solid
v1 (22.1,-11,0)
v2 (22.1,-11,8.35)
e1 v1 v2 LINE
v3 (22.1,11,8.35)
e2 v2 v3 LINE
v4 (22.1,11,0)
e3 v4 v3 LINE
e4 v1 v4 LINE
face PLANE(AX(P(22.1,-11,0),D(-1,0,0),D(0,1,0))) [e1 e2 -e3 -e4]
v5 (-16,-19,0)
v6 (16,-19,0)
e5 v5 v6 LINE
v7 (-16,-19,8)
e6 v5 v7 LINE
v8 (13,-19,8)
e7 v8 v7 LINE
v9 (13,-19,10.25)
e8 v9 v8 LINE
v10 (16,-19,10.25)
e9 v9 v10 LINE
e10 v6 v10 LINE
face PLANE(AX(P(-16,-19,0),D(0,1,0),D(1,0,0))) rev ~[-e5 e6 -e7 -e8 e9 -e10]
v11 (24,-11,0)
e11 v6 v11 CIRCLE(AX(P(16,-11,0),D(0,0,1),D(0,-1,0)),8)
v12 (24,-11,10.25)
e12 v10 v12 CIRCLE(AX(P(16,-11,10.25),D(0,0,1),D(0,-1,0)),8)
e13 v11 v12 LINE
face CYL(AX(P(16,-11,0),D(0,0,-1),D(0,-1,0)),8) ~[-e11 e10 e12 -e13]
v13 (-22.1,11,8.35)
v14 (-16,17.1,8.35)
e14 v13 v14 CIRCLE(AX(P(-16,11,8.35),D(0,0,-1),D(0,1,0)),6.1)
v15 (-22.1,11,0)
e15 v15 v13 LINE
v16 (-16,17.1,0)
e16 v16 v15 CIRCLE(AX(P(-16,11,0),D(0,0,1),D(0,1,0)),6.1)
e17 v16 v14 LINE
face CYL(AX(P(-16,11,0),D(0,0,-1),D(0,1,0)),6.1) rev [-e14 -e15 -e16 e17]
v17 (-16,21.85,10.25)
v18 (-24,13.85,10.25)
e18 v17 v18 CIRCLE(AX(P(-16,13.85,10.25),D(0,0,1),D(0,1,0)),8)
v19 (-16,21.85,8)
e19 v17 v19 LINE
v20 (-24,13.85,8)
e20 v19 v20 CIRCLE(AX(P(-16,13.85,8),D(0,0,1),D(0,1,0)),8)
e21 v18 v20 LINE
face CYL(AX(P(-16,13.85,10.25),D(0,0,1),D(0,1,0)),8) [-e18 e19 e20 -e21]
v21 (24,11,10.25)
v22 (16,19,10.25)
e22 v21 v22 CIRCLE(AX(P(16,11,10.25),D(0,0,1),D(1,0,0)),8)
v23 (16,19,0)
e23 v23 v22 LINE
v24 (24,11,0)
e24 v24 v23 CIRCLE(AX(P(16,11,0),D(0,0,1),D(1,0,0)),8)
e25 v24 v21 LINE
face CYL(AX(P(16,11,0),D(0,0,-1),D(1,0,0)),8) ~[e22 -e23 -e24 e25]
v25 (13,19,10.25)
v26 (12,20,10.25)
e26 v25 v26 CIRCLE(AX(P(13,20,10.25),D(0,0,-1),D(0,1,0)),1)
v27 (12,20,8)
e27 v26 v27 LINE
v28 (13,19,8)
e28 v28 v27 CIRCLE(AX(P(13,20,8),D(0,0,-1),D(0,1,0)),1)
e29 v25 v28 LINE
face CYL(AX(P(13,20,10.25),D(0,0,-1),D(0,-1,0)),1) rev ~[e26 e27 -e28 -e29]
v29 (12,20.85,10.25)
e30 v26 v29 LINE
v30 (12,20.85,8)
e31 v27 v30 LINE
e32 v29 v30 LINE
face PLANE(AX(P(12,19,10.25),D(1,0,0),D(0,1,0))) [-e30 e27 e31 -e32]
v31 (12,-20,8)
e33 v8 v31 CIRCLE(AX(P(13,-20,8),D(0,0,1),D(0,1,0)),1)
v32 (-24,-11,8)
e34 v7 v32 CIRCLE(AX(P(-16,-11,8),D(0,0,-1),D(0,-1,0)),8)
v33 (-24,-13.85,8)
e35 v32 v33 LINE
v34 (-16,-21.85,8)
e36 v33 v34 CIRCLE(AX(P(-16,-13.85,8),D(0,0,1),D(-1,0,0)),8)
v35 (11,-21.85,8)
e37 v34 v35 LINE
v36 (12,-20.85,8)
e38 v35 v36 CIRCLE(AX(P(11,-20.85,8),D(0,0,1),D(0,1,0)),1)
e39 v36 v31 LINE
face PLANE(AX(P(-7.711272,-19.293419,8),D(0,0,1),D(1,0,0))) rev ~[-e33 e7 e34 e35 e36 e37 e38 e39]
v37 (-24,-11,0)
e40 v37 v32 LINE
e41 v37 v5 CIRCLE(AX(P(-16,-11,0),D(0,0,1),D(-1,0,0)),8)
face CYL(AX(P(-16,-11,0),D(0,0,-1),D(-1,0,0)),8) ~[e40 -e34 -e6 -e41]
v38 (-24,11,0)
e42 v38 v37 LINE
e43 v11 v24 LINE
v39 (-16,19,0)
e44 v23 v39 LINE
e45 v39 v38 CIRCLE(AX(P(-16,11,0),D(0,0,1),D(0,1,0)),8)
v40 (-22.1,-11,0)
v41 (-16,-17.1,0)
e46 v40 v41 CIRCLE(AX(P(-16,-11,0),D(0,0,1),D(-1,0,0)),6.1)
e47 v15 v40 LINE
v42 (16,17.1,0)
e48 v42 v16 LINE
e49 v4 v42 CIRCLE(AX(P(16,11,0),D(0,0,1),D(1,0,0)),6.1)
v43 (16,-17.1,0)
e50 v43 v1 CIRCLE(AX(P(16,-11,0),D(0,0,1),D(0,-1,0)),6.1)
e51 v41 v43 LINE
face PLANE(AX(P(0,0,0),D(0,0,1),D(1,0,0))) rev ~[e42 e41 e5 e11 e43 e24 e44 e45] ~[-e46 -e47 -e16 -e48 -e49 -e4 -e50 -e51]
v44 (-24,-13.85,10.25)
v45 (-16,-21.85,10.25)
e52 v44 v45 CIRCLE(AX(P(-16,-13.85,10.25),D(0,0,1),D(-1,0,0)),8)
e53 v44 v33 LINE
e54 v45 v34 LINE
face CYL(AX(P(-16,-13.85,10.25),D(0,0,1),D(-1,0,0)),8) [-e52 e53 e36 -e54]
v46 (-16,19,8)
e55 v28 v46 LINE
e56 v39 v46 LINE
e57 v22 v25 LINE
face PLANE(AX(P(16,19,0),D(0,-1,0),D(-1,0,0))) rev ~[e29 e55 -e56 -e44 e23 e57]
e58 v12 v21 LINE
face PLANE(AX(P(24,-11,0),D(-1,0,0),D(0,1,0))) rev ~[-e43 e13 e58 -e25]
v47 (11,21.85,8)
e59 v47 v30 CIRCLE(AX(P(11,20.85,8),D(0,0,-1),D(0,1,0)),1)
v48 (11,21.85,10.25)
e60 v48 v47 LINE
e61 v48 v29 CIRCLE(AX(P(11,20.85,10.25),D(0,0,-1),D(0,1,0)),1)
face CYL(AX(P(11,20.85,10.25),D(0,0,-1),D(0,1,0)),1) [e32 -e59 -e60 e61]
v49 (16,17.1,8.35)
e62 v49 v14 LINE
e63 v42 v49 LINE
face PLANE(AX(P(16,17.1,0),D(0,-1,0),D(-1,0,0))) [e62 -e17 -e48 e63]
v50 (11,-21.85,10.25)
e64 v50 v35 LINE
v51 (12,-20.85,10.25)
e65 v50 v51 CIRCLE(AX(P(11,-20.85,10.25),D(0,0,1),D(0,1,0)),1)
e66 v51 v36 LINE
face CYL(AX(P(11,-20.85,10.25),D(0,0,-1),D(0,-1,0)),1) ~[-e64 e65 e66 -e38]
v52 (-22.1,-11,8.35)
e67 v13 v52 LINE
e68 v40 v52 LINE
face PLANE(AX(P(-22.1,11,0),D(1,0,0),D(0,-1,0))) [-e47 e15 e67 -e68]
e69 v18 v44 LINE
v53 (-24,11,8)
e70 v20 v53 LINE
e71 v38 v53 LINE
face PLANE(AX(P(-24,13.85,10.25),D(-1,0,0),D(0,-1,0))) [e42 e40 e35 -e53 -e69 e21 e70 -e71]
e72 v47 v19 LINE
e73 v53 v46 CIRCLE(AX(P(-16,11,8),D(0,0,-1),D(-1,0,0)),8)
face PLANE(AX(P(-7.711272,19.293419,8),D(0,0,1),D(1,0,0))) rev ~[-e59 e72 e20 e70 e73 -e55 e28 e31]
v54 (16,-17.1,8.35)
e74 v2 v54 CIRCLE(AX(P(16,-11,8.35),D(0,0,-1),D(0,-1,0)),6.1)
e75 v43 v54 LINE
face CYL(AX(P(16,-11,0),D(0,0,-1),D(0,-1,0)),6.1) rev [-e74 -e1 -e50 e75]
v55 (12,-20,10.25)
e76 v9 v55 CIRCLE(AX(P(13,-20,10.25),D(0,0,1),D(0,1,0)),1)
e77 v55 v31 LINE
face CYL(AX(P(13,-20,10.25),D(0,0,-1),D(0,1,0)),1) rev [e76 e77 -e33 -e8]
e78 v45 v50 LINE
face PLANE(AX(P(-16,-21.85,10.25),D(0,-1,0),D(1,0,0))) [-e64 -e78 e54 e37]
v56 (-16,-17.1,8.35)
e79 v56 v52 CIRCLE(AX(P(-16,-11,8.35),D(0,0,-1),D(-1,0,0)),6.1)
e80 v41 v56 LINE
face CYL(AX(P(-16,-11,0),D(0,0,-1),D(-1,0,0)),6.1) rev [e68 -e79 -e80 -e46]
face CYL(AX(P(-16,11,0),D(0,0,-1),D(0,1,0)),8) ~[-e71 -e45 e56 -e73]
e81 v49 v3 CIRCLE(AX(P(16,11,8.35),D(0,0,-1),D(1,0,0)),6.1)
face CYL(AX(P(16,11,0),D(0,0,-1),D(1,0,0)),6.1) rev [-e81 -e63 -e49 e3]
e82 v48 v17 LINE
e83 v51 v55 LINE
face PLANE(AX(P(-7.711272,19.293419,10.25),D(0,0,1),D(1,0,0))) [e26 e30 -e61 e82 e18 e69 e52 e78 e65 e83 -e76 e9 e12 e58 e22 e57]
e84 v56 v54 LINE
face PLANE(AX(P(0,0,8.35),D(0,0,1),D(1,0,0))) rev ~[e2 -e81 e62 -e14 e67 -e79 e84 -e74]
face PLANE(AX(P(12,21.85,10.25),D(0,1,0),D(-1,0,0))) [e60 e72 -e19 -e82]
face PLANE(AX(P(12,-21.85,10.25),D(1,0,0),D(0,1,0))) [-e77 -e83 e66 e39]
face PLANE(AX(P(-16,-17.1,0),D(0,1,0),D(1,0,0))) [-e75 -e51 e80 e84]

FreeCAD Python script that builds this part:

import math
import FreeCAD as App
import Part
import Sketcher
from FreeCAD import Vector


def edges_at(feature, points):
    """Names of the edges that pass closest to the given points."""
    edges = feature.Shape.Edges
    near = lambda p: min(range(len(edges)), key=lambda i: edges[i].distToShape(Part.Vertex(*p))[0])
    return sorted({f"Edge{near(p) + 1}" for p in points})


def faces_at(feature, points):
    """Names of the faces that lie closest to the given points."""
    faces = feature.Shape.Faces
    near = lambda p: min(range(len(faces)), key=lambda i: faces[i].distToShape(Part.Vertex(*p))[0])
    return sorted({f"Face{near(p) + 1}" for p in points})

doc = App.newDocument("Part")
body = doc.addObject("PartDesign::Body", "Body")

sketch1 = body.newObject("Sketcher::SketchObject", "Sketch")
sketch1.AttachmentSupport = (doc.getObject("XY_Plane"), [""])
sketch1.MapMode = "FlatFace"
sketch1.addGeometry([
    Part.LineSegment(Vector(16, 19, 0), Vector(-16, 19, 0)),
    Part.ArcOfCircle(Part.Circle(Vector(-16, 11, 0), Vector(0, 0, 1), 8), math.radians(90), math.radians(180)),
    Part.LineSegment(Vector(-24, 11, 0), Vector(-24, -11, 0)),
    Part.ArcOfCircle(Part.Circle(Vector(-16, -11, 0), Vector(0, 0, 1), 8), math.radians(180), math.radians(270)),
    Part.LineSegment(Vector(-16, -19, 0), Vector(16, -19, 0)),
    Part.ArcOfCircle(Part.Circle(Vector(16, -11, 0), Vector(0, 0, 1), 8), math.radians(-90), math.radians(0)),
    Part.LineSegment(Vector(24, -11, 0), Vector(24, 11, 0)),
    Part.ArcOfCircle(Part.Circle(Vector(16, 11, 0), Vector(0, 0, 1), 8), math.radians(0), math.radians(90)),
], False)
sketch1.addConstraint([
    Sketcher.Constraint("Tangent", 0, 2, 1, 1),
    Sketcher.Constraint("Tangent", 1, 2, 2, 1),
    Sketcher.Constraint("Tangent", 2, 2, 3, 1),
    Sketcher.Constraint("Tangent", 3, 2, 4, 1),
    Sketcher.Constraint("Tangent", 4, 2, 5, 1),
    Sketcher.Constraint("Tangent", 5, 2, 6, 1),
    Sketcher.Constraint("Tangent", 6, 2, 7, 1),
    Sketcher.Constraint("Tangent", 7, 2, 0, 1),
    Sketcher.Constraint("Horizontal", 0),
    Sketcher.Constraint("Vertical", 2),
    Sketcher.Constraint("Horizontal", 4),
    Sketcher.Constraint("Vertical", 6),
    Sketcher.Constraint("Equal", 1, 3),
    Sketcher.Constraint("Equal", 3, 5),
    Sketcher.Constraint("Equal", 5, 7),
    Sketcher.Constraint("Symmetric", 1, 3, 5, 3, -1, 1),
    Sketcher.Constraint("Radius", 1, 8.0),
    Sketcher.Constraint("DistanceX", 0, 2, 0, 1, 32.0),
    Sketcher.Constraint("DistanceY", 2, 2, 2, 1, 22.0),
])
pad1 = body.newObject("PartDesign::Pad", "Pad")
pad1.Profile = sketch1
pad1.Length = 10.25
doc.recompute()

thickness = body.newObject("PartDesign::Thickness", "Thickness")
thickness.Base = (pad1, faces_at(pad1, [(0, 0, 0)]))
thickness.Value = 1.9
thickness.Reversed = True
thickness.Join = "Arc"

sketch2 = body.newObject("Sketcher::SketchObject", "Sketch001")
sketch2.AttachmentSupport = (doc.getObject("XY_Plane"), [""])
sketch2.MapMode = "FlatFace"
sketch2.AttachmentOffset = App.Placement(Vector(0, 0, 10.25), App.Rotation())
sketch2.addGeometry([
    Part.LineSegment(Vector(12, 21.9, 0), Vector(-16, 21.9, 0)),
    Part.ArcOfCircle(Part.Circle(Vector(-16, 13.8, 0), Vector(0, 0, 1), 8), math.radians(90), math.radians(180)),
    Part.LineSegment(Vector(-24, 13.8, 0), Vector(-24, 11, 0)),
    Part.ArcOfCircle(Part.Circle(Vector(-16, 11, 0), Vector(0, 0, 1), 8), math.radians(90), math.radians(180)),
    Part.LineSegment(Vector(-16, 19, 0), Vector(12, 19, 0)),
    Part.LineSegment(Vector(12, 19, 0), Vector(12, 21.9, 0)),
    Part.LineSegment(Vector(12, -21.9, 0), Vector(12, -19, 0)),
    Part.LineSegment(Vector(12, -19, 0), Vector(-16, -19, 0)),
    Part.ArcOfCircle(Part.Circle(Vector(-16, -11, 0), Vector(0, 0, 1), 8), math.radians(180), math.radians(270)),
    Part.LineSegment(Vector(-24, -11, 0), Vector(-24, -13.8, 0)),
    Part.ArcOfCircle(Part.Circle(Vector(-16, -13.8, 0), Vector(0, 0, 1), 8), math.radians(180), math.radians(270)),
    Part.LineSegment(Vector(-16, -21.9, 0), Vector(12, -21.9, 0)),
], False)
sketch2.addConstraint([
    Sketcher.Constraint("Tangent", 0, 2, 1, 1),
    Sketcher.Constraint("Tangent", 1, 2, 2, 1),
    Sketcher.Constraint("Tangent", 2, 2, 3, 2),
    Sketcher.Constraint("Tangent", 3, 1, 4, 1),
    Sketcher.Constraint("Coincident", 4, 2, 5, 1),
    Sketcher.Constraint("Coincident", 5, 2, 0, 1),
    Sketcher.Constraint("Coincident", 6, 2, 7, 1),
    Sketcher.Constraint("Tangent", 7, 2, 8, 2),
    Sketcher.Constraint("Tangent", 8, 1, 9, 1),
    Sketcher.Constraint("Tangent", 9, 2, 10, 1),
    Sketcher.Constraint("Tangent", 10, 2, 11, 1),
    Sketcher.Constraint("Coincident", 11, 2, 6, 1),
    Sketcher.Constraint("Horizontal", 0),
    Sketcher.Constraint("Vertical", 2),
    Sketcher.Constraint("Horizontal", 4),
    Sketcher.Constraint("Vertical", 5),
    Sketcher.Constraint("Vertical", 6),
    Sketcher.Constraint("Horizontal", 7),
    Sketcher.Constraint("Vertical", 9),
    Sketcher.Constraint("Horizontal", 11),
    Sketcher.Constraint("Equal", 1, 3),
    Sketcher.Constraint("Equal", 3, 8),
    Sketcher.Constraint("Equal", 8, 10),
    Sketcher.Constraint("Symmetric", 3, 3, 8, 3, -1),
    Sketcher.Constraint("Symmetric", 5, 2, 11, 2, -1),
    Sketcher.Constraint("Radius", 1, 8.0),
    Sketcher.Constraint("DistanceX", 0, 2, 0, 1, 28.0),
    Sketcher.Constraint("DistanceX", 1, 3, -1, 1, 16.0),
    Sketcher.Constraint("DistanceY", -1, 1, 3, 3, 11.0),
    Sketcher.Constraint("DistanceY", 2, 2, 2, 1, 2.85),
])
pad2 = body.newObject("PartDesign::Pad", "Pad001")
pad2.Profile = sketch2
pad2.Length = 2.25
pad2.Reversed = True
doc.recompute()

fillet = body.newObject("PartDesign::Fillet", "Fillet")
fillet.Base = (pad2, edges_at(pad2, [
    (12, 19, 9.125),
    (12, 21.85, 9.125),
    (12, -19, 9.125),
    (12, -21.85, 9.125),
]))
fillet.Radius = 1

doc.recompute()
